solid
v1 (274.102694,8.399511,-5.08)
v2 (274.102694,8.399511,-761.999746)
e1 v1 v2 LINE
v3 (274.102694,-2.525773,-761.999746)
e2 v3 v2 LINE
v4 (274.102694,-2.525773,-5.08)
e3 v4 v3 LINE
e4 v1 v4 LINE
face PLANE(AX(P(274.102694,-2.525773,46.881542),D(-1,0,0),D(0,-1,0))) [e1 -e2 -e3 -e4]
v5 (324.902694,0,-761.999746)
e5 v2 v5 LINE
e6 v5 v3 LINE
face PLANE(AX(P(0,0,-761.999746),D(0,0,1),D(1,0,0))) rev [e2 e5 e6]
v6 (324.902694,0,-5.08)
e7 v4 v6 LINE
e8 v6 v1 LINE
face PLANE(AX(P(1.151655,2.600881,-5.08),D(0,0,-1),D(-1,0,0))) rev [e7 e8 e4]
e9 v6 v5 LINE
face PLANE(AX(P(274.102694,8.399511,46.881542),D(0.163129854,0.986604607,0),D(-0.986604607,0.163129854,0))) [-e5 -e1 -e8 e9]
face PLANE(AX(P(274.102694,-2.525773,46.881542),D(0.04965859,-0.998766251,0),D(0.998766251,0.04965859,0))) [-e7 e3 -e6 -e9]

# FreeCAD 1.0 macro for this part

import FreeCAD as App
import Part
import Sketcher
from FreeCAD import Vector


def add_polygon(sketch, points):
    """Adds a closed chain of lines whose ends are joined by coincident constraints."""
    first, n = sketch.GeometryCount, len(points)
    for a, b in zip(points, points[1:] + points[:1]):
        sketch.addGeometry(Part.LineSegment(App.Vector(*a, 0), App.Vector(*b, 0)), False)
    for i in range(n):
        sketch.addConstraint(Sketcher.Constraint("Coincident", first + i, 2, first + (i + 1) % n, 1))

doc = App.newDocument("Part")
params = doc.addObject("Spreadsheet::Sheet", "Params")
for row, (alias, value) in enumerate([
    ("pad1_length", "756.919746 mm"),
], start=1):
    params.set(f"A{row}", alias)
    params.set(f"B{row}", "=" + value)
    params.setAlias(f"B{row}", alias)

body = doc.addObject("PartDesign::Body", "Body")

sketch1 = body.newObject("Sketcher::SketchObject", "Sketch")
sketch1.AttachmentSupport = (doc.getObject("XY_Plane"), [""])
sketch1.MapMode = "FlatFace"
sketch1.AttachmentOffset = App.Placement(Vector(0, 0, -761.999746), App.Rotation())
add_polygon(sketch1, [(274, -3), (274, 8), (325, 0)])
sketch1.addConstraint([
    Sketcher.Constraint("Vertical", 0),
    Sketcher.Constraint("PointOnObject", 1, 2, -1),
    Sketcher.Constraint("DistanceX", 0, 2, 1, 2, 50.8),
    Sketcher.Constraint("Distance", 2, 50.862752),
    Sketcher.Constraint("DistanceY", 0, 1, 0, 2, 10.925284),
    Sketcher.Constraint("DistanceX", -1, 1, 0, 2, 274.102694),
])
pad1 = body.newObject("PartDesign::Pad", "Pad")
pad1.Profile = sketch1
pad1.setExpression("Length", "Params.pad1_length")

doc.recompute()
